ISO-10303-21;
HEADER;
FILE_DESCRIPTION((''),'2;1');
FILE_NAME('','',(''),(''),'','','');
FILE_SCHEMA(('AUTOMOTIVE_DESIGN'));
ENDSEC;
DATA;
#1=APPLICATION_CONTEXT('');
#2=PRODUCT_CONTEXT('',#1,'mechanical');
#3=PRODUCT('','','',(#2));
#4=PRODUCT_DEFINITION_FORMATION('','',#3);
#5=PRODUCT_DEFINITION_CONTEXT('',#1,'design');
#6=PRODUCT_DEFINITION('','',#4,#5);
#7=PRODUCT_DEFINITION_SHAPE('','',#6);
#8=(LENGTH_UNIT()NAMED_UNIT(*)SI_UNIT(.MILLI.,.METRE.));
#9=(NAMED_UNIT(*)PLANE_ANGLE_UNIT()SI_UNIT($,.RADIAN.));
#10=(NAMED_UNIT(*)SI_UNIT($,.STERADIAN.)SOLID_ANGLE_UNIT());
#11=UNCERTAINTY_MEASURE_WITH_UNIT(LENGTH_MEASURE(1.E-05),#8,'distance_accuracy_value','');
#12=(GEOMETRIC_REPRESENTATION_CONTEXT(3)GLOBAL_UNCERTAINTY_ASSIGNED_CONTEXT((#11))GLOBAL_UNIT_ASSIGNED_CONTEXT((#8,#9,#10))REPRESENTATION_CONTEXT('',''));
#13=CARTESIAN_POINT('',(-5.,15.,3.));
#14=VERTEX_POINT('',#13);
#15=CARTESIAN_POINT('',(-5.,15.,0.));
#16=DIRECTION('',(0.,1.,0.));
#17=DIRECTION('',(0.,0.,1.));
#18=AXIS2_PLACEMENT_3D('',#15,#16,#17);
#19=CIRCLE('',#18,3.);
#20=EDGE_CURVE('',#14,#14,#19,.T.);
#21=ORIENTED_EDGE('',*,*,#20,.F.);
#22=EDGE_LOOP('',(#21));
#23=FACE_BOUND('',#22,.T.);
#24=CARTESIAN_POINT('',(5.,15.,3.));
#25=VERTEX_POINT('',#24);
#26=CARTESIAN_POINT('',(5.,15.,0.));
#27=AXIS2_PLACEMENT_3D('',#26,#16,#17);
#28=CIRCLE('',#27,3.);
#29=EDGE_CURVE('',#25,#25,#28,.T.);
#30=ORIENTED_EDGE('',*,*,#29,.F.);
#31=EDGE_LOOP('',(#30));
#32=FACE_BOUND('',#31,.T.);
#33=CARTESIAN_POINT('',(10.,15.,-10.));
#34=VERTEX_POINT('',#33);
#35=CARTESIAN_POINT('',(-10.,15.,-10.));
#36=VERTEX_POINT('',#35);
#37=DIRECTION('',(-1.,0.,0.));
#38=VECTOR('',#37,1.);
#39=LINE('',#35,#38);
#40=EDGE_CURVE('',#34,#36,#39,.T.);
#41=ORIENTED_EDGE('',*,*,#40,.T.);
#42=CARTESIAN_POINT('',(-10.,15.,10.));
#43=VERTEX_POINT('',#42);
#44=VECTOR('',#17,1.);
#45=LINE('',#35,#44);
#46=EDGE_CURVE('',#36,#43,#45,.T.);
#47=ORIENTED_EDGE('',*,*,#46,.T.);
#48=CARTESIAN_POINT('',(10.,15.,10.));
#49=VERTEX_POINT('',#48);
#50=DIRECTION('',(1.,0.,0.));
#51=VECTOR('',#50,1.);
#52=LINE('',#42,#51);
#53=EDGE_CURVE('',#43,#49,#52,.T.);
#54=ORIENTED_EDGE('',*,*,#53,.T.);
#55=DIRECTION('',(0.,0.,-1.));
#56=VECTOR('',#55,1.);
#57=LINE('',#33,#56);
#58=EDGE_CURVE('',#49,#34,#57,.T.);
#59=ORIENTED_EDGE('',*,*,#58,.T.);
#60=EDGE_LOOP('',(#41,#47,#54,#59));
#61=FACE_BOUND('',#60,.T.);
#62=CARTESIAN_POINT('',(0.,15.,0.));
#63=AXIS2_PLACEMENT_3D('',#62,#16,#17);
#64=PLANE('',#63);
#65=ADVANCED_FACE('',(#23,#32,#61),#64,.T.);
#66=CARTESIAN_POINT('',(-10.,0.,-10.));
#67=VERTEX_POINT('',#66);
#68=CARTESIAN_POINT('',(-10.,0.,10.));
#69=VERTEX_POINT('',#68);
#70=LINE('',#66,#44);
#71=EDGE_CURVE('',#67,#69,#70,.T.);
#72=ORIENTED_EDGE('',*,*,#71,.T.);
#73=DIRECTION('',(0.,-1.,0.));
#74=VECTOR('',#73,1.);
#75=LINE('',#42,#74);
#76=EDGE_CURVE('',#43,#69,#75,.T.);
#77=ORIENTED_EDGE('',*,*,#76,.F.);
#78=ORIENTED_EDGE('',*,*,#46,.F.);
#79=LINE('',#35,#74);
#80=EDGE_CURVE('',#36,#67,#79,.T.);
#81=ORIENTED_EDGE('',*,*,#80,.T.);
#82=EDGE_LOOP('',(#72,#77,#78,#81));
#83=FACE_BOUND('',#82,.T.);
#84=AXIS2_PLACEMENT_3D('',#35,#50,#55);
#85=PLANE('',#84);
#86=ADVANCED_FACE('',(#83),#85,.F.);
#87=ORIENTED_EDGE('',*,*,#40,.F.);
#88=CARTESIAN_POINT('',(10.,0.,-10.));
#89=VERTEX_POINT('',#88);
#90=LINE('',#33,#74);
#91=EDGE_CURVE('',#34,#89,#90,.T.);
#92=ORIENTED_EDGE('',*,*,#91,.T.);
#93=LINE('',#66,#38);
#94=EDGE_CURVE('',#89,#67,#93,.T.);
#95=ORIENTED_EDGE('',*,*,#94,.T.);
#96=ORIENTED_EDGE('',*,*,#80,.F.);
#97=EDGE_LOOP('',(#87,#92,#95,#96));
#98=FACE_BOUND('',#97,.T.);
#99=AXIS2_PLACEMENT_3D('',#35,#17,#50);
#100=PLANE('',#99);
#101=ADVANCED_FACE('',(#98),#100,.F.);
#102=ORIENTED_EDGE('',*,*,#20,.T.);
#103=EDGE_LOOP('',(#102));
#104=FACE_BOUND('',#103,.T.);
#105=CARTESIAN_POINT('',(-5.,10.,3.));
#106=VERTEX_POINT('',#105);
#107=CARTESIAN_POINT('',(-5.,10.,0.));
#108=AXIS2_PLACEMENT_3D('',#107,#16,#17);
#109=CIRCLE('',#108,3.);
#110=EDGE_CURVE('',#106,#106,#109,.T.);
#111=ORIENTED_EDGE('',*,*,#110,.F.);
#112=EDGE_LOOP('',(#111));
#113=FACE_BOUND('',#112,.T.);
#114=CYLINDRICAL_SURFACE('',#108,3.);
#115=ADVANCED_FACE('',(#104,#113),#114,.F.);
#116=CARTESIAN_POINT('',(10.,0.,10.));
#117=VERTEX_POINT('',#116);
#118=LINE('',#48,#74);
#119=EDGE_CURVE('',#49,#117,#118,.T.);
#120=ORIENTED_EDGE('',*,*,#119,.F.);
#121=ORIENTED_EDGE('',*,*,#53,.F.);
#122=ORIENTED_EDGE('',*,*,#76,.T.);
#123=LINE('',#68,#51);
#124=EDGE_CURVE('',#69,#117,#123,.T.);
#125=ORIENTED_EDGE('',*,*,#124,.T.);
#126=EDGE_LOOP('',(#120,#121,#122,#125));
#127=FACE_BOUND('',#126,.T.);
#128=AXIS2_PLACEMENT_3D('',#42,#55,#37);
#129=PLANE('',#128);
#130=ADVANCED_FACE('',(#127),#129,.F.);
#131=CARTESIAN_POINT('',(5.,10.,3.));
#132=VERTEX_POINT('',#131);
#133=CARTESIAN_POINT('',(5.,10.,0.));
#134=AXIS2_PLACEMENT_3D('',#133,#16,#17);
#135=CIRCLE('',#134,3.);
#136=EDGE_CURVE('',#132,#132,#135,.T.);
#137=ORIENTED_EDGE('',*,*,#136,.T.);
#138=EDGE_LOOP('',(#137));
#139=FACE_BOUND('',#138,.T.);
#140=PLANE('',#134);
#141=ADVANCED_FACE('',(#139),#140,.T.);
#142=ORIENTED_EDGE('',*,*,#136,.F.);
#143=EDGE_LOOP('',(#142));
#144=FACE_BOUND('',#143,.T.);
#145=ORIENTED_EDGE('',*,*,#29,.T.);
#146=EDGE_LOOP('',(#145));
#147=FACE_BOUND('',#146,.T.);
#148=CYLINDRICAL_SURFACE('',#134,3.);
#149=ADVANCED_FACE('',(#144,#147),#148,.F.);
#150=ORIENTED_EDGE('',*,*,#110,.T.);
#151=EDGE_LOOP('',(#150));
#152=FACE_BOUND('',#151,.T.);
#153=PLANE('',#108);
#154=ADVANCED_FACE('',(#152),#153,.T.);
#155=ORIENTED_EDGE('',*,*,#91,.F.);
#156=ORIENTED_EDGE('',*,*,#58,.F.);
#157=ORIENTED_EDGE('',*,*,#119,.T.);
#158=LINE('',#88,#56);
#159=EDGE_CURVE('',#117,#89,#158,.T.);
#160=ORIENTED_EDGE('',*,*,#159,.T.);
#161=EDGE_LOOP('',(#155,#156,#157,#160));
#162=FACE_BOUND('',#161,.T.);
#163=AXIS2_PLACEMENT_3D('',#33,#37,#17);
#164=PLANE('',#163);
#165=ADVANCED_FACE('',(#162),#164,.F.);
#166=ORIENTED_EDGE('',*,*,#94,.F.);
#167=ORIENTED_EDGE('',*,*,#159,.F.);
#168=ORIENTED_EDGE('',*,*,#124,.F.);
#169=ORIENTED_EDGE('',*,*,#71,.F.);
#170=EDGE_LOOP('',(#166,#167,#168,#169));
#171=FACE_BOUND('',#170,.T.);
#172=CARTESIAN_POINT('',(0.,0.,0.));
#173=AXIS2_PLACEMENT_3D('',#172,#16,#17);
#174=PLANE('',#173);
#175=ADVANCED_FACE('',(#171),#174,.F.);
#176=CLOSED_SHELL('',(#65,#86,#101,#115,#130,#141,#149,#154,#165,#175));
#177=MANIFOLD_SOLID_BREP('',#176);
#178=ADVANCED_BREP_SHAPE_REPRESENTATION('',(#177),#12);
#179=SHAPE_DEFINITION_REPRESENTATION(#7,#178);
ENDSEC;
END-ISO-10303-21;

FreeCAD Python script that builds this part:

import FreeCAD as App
import Part
import Sketcher
from FreeCAD import Vector


def add_polygon(sketch, points):
    """Adds a closed chain of lines whose ends are joined by coincident constraints."""
    first, n = sketch.GeometryCount, len(points)
    for a, b in zip(points, points[1:] + points[:1]):
        sketch.addGeometry(Part.LineSegment(App.Vector(*a, 0), App.Vector(*b, 0)), False)
    for i in range(n):
        sketch.addConstraint(Sketcher.Constraint("Coincident", first + i, 2, first + (i + 1) % n, 1))

doc = App.newDocument("Part")
body = doc.addObject("PartDesign::Body", "Body")

sketch1 = body.newObject("Sketcher::SketchObject", "Sketch")
sketch1.AttachmentSupport = (doc.getObject("XZ_Plane"), [""])
sketch1.MapMode = "FlatFace"
add_polygon(sketch1, [(-10, -10), (-10, 10), (10, 10), (10, -10)])
sketch1.addConstraint([
    Sketcher.Constraint("Vertical", 0),
    Sketcher.Constraint("Horizontal", 1),
    Sketcher.Constraint("Vertical", 2),
    Sketcher.Constraint("Horizontal", 3),
    Sketcher.Constraint("Symmetric", 0, 2, 2, 2, -1, 1),
    Sketcher.Constraint("Equal", 3, 0),
    Sketcher.Constraint("DistanceX", 1, 1, 1, 2, 20.0),
])
pad1 = body.newObject("PartDesign::Pad", "Pad")
pad1.Profile = sketch1
pad1.Length = 15
pad1.Reversed = True

sketch2 = body.newObject("Sketcher::SketchObject", "Sketch001")
sketch2.AttachmentSupport = (doc.getObject("XZ_Plane"), [""])
sketch2.MapMode = "FlatFace"
sketch2.AttachmentOffset = App.Placement(Vector(0, 0, -15), App.Rotation())
sketch2.addGeometry([
    Part.Circle(Vector(5, 0, 0), Vector(0, 0, 1), 3),
    Part.Circle(Vector(-5, 0, 0), Vector(0, 0, 1), 3),
], False)
sketch2.addConstraint([
    Sketcher.Constraint("Equal", 0, 1),
    Sketcher.Constraint("Symmetric", 0, 3, 1, 3, -1, 1),
    Sketcher.Constraint("PointOnObject", 0, 3, -1),
    Sketcher.Constraint("Diameter", 0, 6.0),
    Sketcher.Constraint("DistanceX", -1, 1, 0, 3, 5.0),
])
pocket1 = body.newObject("PartDesign::Pocket", "Pocket")
pocket1.Profile = sketch2
pocket1.Length = 5
pocket1.Reversed = True

doc.recompute()
